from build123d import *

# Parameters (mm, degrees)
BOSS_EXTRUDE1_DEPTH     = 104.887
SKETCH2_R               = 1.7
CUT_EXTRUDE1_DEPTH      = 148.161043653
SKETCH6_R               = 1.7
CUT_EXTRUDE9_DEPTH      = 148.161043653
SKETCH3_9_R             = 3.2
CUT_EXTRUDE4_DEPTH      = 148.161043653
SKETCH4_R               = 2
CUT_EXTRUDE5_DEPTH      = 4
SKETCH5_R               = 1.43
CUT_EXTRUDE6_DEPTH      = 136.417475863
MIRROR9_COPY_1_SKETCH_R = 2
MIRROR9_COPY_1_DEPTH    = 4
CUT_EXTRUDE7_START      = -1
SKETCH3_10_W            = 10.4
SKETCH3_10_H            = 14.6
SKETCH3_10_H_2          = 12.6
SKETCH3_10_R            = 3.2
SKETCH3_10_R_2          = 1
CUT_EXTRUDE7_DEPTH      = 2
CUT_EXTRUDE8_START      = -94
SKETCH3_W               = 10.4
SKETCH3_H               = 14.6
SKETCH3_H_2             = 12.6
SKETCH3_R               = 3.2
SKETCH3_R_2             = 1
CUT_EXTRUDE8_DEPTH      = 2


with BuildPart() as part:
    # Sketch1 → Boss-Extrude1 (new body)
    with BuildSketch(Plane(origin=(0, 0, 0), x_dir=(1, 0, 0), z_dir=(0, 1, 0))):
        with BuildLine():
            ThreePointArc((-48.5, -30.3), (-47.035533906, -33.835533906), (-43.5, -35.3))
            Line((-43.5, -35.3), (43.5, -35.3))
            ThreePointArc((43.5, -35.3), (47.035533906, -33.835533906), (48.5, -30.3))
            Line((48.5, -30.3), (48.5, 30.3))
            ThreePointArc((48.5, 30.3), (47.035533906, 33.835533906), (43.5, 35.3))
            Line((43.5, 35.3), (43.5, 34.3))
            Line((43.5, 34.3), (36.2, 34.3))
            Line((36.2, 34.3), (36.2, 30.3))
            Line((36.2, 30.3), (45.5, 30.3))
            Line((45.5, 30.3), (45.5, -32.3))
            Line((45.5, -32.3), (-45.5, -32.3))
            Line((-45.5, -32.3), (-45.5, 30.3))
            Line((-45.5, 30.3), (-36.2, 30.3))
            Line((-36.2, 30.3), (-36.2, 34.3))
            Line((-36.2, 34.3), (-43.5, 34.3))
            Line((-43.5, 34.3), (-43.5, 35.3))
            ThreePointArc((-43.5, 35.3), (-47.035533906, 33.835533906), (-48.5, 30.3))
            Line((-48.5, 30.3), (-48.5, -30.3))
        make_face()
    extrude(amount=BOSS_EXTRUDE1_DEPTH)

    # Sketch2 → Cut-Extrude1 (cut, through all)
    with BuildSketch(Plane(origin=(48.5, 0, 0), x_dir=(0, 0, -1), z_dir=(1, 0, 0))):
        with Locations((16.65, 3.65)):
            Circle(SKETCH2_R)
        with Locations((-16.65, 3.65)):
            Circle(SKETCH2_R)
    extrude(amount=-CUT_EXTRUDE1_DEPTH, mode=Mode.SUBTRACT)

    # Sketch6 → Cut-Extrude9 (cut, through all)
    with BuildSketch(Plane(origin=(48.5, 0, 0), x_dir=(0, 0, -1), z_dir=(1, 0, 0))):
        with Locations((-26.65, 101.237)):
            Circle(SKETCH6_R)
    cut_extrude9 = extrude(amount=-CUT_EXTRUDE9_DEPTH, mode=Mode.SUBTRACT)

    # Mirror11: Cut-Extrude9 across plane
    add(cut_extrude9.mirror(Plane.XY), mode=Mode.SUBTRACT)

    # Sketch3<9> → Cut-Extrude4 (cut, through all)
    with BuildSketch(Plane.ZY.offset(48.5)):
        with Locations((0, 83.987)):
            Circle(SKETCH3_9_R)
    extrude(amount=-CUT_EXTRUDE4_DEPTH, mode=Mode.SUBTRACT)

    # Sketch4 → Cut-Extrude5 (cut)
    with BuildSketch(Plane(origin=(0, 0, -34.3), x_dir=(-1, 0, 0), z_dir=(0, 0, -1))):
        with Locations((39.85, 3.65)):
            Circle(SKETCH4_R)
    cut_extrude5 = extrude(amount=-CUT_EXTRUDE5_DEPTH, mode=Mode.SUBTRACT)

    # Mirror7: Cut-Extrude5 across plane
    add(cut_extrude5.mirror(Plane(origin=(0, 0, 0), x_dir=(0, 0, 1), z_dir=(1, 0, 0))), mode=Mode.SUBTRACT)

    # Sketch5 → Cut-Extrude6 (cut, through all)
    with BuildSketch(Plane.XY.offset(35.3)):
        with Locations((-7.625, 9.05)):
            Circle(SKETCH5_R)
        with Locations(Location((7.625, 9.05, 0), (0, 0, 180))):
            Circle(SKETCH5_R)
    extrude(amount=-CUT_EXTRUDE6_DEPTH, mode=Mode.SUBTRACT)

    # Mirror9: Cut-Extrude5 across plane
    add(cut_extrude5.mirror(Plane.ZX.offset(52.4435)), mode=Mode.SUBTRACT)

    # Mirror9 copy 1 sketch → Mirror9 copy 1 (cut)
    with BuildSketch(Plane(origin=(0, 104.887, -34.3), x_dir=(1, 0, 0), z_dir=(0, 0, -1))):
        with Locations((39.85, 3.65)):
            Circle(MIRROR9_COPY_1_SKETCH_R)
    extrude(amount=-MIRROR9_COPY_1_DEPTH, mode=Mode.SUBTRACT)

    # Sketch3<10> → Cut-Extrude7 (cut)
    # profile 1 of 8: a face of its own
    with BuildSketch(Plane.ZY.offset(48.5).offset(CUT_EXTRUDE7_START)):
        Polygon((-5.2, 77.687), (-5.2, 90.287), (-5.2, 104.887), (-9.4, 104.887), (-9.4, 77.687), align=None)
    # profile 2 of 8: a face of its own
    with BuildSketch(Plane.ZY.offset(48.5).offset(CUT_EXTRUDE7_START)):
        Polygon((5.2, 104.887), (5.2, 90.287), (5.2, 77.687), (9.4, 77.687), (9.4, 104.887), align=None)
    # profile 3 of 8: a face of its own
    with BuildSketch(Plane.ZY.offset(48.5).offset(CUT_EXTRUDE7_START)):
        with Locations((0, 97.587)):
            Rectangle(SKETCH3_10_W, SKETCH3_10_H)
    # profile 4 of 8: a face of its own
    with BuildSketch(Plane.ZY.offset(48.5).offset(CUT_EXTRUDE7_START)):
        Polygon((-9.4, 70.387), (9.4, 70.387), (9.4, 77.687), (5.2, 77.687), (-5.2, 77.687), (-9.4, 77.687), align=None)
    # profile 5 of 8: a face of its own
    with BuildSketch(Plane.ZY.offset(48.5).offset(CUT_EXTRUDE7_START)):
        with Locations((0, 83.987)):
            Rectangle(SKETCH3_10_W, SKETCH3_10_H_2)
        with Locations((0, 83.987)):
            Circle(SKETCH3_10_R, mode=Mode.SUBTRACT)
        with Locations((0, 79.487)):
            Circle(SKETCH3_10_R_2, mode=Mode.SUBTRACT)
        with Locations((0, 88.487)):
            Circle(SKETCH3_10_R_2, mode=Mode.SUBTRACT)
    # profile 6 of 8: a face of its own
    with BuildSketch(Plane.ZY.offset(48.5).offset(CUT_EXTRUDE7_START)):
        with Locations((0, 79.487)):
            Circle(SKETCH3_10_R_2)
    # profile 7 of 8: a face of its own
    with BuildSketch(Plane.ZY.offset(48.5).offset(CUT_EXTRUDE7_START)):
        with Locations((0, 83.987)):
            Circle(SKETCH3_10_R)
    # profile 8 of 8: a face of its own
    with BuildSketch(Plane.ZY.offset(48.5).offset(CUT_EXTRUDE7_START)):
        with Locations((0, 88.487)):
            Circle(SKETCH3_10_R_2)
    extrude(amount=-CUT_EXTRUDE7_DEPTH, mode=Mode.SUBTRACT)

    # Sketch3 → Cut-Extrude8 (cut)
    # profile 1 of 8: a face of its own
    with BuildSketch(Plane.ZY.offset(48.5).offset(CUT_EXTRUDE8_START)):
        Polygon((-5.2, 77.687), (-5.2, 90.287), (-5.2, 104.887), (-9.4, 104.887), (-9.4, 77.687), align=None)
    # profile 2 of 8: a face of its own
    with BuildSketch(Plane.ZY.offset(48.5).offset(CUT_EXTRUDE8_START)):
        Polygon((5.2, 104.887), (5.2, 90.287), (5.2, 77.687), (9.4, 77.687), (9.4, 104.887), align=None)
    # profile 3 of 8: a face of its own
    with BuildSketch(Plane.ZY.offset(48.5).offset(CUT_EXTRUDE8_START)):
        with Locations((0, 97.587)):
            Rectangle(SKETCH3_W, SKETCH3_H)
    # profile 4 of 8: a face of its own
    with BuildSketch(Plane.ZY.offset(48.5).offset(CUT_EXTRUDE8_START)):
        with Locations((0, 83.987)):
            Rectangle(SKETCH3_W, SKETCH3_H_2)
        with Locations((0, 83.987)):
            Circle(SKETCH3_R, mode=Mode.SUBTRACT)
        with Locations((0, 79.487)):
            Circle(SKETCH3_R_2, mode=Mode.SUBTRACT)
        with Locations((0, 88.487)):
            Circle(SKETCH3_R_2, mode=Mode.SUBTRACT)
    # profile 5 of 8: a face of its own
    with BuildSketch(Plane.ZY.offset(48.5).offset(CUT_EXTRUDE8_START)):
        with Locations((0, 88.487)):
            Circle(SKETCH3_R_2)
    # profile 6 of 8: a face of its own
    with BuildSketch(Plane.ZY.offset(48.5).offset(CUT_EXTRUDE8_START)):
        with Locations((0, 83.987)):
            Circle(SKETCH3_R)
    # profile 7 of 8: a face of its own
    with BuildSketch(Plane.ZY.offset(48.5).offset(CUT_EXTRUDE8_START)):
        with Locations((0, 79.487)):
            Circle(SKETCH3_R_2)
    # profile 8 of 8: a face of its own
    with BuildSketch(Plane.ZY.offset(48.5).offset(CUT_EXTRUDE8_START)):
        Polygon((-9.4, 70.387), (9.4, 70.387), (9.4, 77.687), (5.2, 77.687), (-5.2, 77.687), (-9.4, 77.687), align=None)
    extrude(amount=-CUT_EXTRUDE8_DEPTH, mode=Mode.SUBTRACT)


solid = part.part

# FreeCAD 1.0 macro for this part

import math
import FreeCAD as App
import Part
import Sketcher
from FreeCAD import Vector
Q = App.Units.Quantity

doc = App.newDocument("Part")
body = doc.addObject("PartDesign::Body", "Body")

# Sketch on XZ plane
sketch1 = doc.addObject("Sketcher::SketchObject", "Sketch")
body.addObject(sketch1)
sketch1.AttachmentSupport = (doc.XZ_Plane, [""])
sketch1.MapMode = "FlatFace"
sketch1.addGeometry(Part.ArcOfCircle(Part.Circle(Vector(-43.5, 30.3, 0), Vector(0, 0, 1), 5), math.radians(90), math.radians(180)), False)
sketch1.addGeometry(Part.LineSegment(Vector(-43.5, 35.3, 0), Vector(43.5, 35.3, 0)), False)
sketch1.addGeometry(Part.ArcOfCircle(Part.Circle(Vector(43.5, 30.3, 0), Vector(0, 0, 1), 5), math.radians(0), math.radians(90)), False)
sketch1.addGeometry(Part.LineSegment(Vector(48.5, 30.3, 0), Vector(48.5, -30.3, 0)), False)
sketch1.addGeometry(Part.ArcOfCircle(Part.Circle(Vector(43.5, -30.3, 0), Vector(0, 0, 1), 5), math.radians(-90), math.radians(0)), False)
sketch1.addGeometry(Part.LineSegment(Vector(43.5, -35.3, 0), Vector(43.5, -34.3, 0)), False)
sketch1.addGeometry(Part.LineSegment(Vector(43.5, -34.3, 0), Vector(36.2, -34.3, 0)), False)
sketch1.addGeometry(Part.LineSegment(Vector(36.2, -34.3, 0), Vector(36.2, -30.3, 0)), False)
sketch1.addGeometry(Part.LineSegment(Vector(36.2, -30.3, 0), Vector(45.5, -30.3, 0)), False)
sketch1.addGeometry(Part.LineSegment(Vector(45.5, -30.3, 0), Vector(45.5, 32.3, 0)), False)
sketch1.addGeometry(Part.LineSegment(Vector(45.5, 32.3, 0), Vector(-45.5, 32.3, 0)), False)
sketch1.addGeometry(Part.LineSegment(Vector(-45.5, 32.3, 0), Vector(-45.5, -30.3, 0)), False)
sketch1.addGeometry(Part.LineSegment(Vector(-45.5, -30.3, 0), Vector(-36.2, -30.3, 0)), False)
sketch1.addGeometry(Part.LineSegment(Vector(-36.2, -30.3, 0), Vector(-36.2, -34.3, 0)), False)
sketch1.addGeometry(Part.LineSegment(Vector(-36.2, -34.3, 0), Vector(-43.5, -34.3, 0)), False)
sketch1.addGeometry(Part.LineSegment(Vector(-43.5, -34.3, 0), Vector(-43.5, -35.3, 0)), False)
sketch1.addGeometry(Part.ArcOfCircle(Part.Circle(Vector(-43.5, -30.3, 0), Vector(0, 0, 1), 5), math.radians(180), math.radians(270)), False)
sketch1.addGeometry(Part.LineSegment(Vector(-48.5, -30.3, 0), Vector(-48.5, 30.3, 0)), False)
sketch1.addConstraint(Sketcher.Constraint("Tangent", 0, 1, 1, 1))
sketch1.addConstraint(Sketcher.Constraint("Tangent", 1, 2, 2, 2))
sketch1.addConstraint(Sketcher.Constraint("Tangent", 2, 1, 3, 1))
sketch1.addConstraint(Sketcher.Constraint("Tangent", 3, 2, 4, 2))
sketch1.addConstraint(Sketcher.Constraint("Coincident", 4, 1, 5, 1))
sketch1.addConstraint(Sketcher.Constraint("Coincident", 5, 2, 6, 1))
sketch1.addConstraint(Sketcher.Constraint("Coincident", 6, 2, 7, 1))
sketch1.addConstraint(Sketcher.Constraint("Coincident", 7, 2, 8, 1))
sketch1.addConstraint(Sketcher.Constraint("Coincident", 8, 2, 9, 1))
sketch1.addConstraint(Sketcher.Constraint("Coincident", 9, 2, 10, 1))
sketch1.addConstraint(Sketcher.Constraint("Coincident", 10, 2, 11, 1))
sketch1.addConstraint(Sketcher.Constraint("Coincident", 11, 2, 12, 1))
sketch1.addConstraint(Sketcher.Constraint("Coincident", 12, 2, 13, 1))
sketch1.addConstraint(Sketcher.Constraint("Coincident", 13, 2, 14, 1))
sketch1.addConstraint(Sketcher.Constraint("Coincident", 14, 2, 15, 1))
sketch1.addConstraint(Sketcher.Constraint("Coincident", 15, 2, 16, 2))
sketch1.addConstraint(Sketcher.Constraint("Tangent", 16, 1, 17, 1))
sketch1.addConstraint(Sketcher.Constraint("Tangent", 17, 2, 0, 2))
sketch1.addConstraint(Sketcher.Constraint("Horizontal", 1))
sketch1.addConstraint(Sketcher.Constraint("Vertical", 3))
sketch1.addConstraint(Sketcher.Constraint("Vertical", 5))
sketch1.addConstraint(Sketcher.Constraint("Horizontal", 6))
sketch1.addConstraint(Sketcher.Constraint("Vertical", 7))
sketch1.addConstraint(Sketcher.Constraint("Horizontal", 8))
sketch1.addConstraint(Sketcher.Constraint("Vertical", 9))
sketch1.addConstraint(Sketcher.Constraint("Horizontal", 10))
sketch1.addConstraint(Sketcher.Constraint("Vertical", 11))
sketch1.addConstraint(Sketcher.Constraint("Horizontal", 12))
sketch1.addConstraint(Sketcher.Constraint("Vertical", 13))
sketch1.addConstraint(Sketcher.Constraint("Horizontal", 14))
sketch1.addConstraint(Sketcher.Constraint("Vertical", 15))
sketch1.addConstraint(Sketcher.Constraint("Vertical", 17))
sketch1.addConstraint(Sketcher.Constraint("Equal", 0, 2))
sketch1.addConstraint(Sketcher.Constraint("Equal", 2, 4))
sketch1.addConstraint(Sketcher.Constraint("Equal", 4, 16))
sketch1.addConstraint(Sketcher.Constraint("Symmetric", 0, 3, 4, 3, -1, 1))
sketch1.addConstraint(Sketcher.Constraint("Symmetric", 1, 2, 15, 2, -1, 1))
sketch1.addConstraint(Sketcher.Constraint("Symmetric", 8, 2, 11, 2, -2))
sketch1.addConstraint(Sketcher.Constraint("Symmetric", 6, 2, 13, 2, -2))
sketch1.addConstraint(Sketcher.Constraint("Horizontal", 3, 2, 7, 2))
sketch1.addConstraint(Sketcher.Constraint("Vertical", 1, 2, 4, 1))
sketch1.addConstraint(Sketcher.Constraint("Radius", 0, Q("5 mm")))
sketch1.addConstraint(Sketcher.Constraint("DistanceX", 1, 1, 1, 2, Q("87 mm")))
sketch1.addConstraint(Sketcher.Constraint("DistanceX", 10, 2, 10, 1, Q("91 mm")))
sketch1.addConstraint(Sketcher.Constraint("DistanceY", 5, 1, 5, 2, Q("1 mm")))
sketch1.addConstraint(Sketcher.Constraint("DistanceX", 6, 2, 6, 1, Q("7.3 mm")))
sketch1.addConstraint(Sketcher.Constraint("DistanceY", 3, 2, 3, 1, Q("60.6 mm")))
sketch1.addConstraint(Sketcher.Constraint("DistanceY", 9, 1, 9, 2, Q("62.6 mm")))
pad1 = doc.addObject("PartDesign::Pad", "Pad")
body.addObject(pad1)
pad1.Profile = sketch1
pad1.Length = 104.887
pad1.Reversed = True

# Sketch on YZ plane
sketch2 = doc.addObject("Sketcher::SketchObject", "Sketch001")
body.addObject(sketch2)
sketch2.AttachmentSupport = (doc.YZ_Plane, [""])
sketch2.MapMode = "FlatFace"
sketch2.AttachmentOffset = App.Placement(Vector(0, 0, 48.5), App.Rotation())
sketch2.addGeometry(Part.Circle(Vector(3.6, -16.6, 0), Vector(0, 0, 1), 1.7), False)
sketch2.addGeometry(Part.Circle(Vector(3.6, 16.6, 0), Vector(0, 0, 1), 1.7), False)
sketch2.addConstraint(Sketcher.Constraint("Equal", 0, 1))
sketch2.addConstraint(Sketcher.Constraint("Symmetric", 0, 3, 1, 3, -1))
sketch2.addConstraint(Sketcher.Constraint("Diameter", 0, Q("3.4 mm")))
sketch2.addConstraint(Sketcher.Constraint("DistanceY", 0, 3, 1, 3, Q("33.3 mm")))
sketch2.addConstraint(Sketcher.Constraint("DistanceX", -1, 1, 0, 3, Q("3.65 mm")))
pocket1 = doc.addObject("PartDesign::Pocket", "Pocket")
body.addObject(pocket1)
pocket1.Profile = sketch2
pocket1.Type = "ThroughAll"

# Sketch on YZ plane
sketch3 = doc.addObject("Sketcher::SketchObject", "Sketch002")
body.addObject(sketch3)
sketch3.AttachmentSupport = (doc.YZ_Plane, [""])
sketch3.MapMode = "FlatFace"
sketch3.AttachmentOffset = App.Placement(Vector(0, 0, 48.5), App.Rotation())
sketch3.addGeometry(Part.Circle(Vector(101.2, 26.6, 0), Vector(0, 0, 1), 1.7), False)
sketch3.addConstraint(Sketcher.Constraint("Diameter", 0, Q("3.4 mm")))
sketch3.addConstraint(Sketcher.Constraint("DistanceY", -1, 1, 0, 3, Q("26.65 mm")))
sketch3.addConstraint(Sketcher.Constraint("DistanceX", -1, 1, 0, 3, Q("101.237 mm")))
pocket2 = doc.addObject("PartDesign::Pocket", "Pocket001")
body.addObject(pocket2)
pocket2.Profile = sketch3
pocket2.Type = "ThroughAll"
doc.recompute()

mirrored = doc.addObject("PartDesign::Mirrored", "Mirrored")
body.addObject(mirrored)
mirrored.Originals = [pocket2]
mirrored.MirrorPlane = (doc.XY_Plane, [""])
body.Tip = mirrored

# Sketch on YZ plane
sketch4 = doc.addObject("Sketcher::SketchObject", "Sketch003")
body.addObject(sketch4)
sketch4.AttachmentSupport = (doc.YZ_Plane, [""])
sketch4.MapMode = "FlatFace"
sketch4.AttachmentOffset = App.Placement(Vector(0, 0, -48.5), App.Rotation())
sketch4.addGeometry(Part.Circle(Vector(84, 0, 0), Vector(0, 0, 1), 3.2), False)
sketch4.addConstraint(Sketcher.Constraint("PointOnObject", 0, 3, -1))
sketch4.addConstraint(Sketcher.Constraint("Diameter", 0, Q("6.4 mm")))
sketch4.addConstraint(Sketcher.Constraint("DistanceX", -1, 1, 0, 3, Q("83.987 mm")))
pocket3 = doc.addObject("PartDesign::Pocket", "Pocket002")
body.addObject(pocket3)
pocket3.Profile = sketch4
pocket3.Type = "ThroughAll"
pocket3.Reversed = True

# Sketch on XY plane
sketch5 = doc.addObject("Sketcher::SketchObject", "Sketch004")
body.addObject(sketch5)
sketch5.AttachmentSupport = (doc.XY_Plane, [""])
sketch5.MapMode = "FlatFace"
sketch5.AttachmentOffset = App.Placement(Vector(0, 0, -34.3), App.Rotation())
sketch5.addGeometry(Part.Circle(Vector(-39.9, 3.6, 0), Vector(0, 0, 1), 2), False)
sketch5.addConstraint(Sketcher.Constraint("Diameter", 0, Q("4 mm")))
sketch5.addConstraint(Sketcher.Constraint("DistanceX", 0, 3, -1, 1, Q("39.85 mm")))
sketch5.addConstraint(Sketcher.Constraint("DistanceY", -1, 1, 0, 3, Q("3.65 mm")))
pocket4 = doc.addObject("PartDesign::Pocket", "Pocket003")
body.addObject(pocket4)
pocket4.Profile = sketch5
pocket4.Length = 4
pocket4.Reversed = True
doc.recompute()

mirrored2 = doc.addObject("PartDesign::Mirrored", "Mirrored001")
body.addObject(mirrored2)
mirrored2.Originals = [pocket4]
mirrored2.MirrorPlane = (doc.YZ_Plane, [""])
body.Tip = mirrored2

# Sketch on XY plane
sketch6 = doc.addObject("Sketcher::SketchObject", "Sketch005")
body.addObject(sketch6)
sketch6.AttachmentSupport = (doc.XY_Plane, [""])
sketch6.MapMode = "FlatFace"
sketch6.AttachmentOffset = App.Placement(Vector(0, 0, 35.3), App.Rotation())
sketch6.addGeometry(Part.Circle(Vector(-7.6, 9.1, 0), Vector(0, 0, 1), 1.4), False)
sketch6.addGeometry(Part.Circle(Vector(7.6, 9.1, 0), Vector(0, 0, 1), 1.4), False)
sketch6.addConstraint(Sketcher.Constraint("Equal", 0, 1))
sketch6.addConstraint(Sketcher.Constraint("Symmetric", 0, 3, 1, 3, -2))
sketch6.addConstraint(Sketcher.Constraint("Diameter", 0, Q("2.86 mm")))
sketch6.addConstraint(Sketcher.Constraint("DistanceY", -1, 1, 0, 3, Q("9.05 mm")))
sketch6.addConstraint(Sketcher.Constraint("DistanceX", 0, 3, 1, 3, Q("15.25 mm")))
pocket5 = doc.addObject("PartDesign::Pocket", "Pocket004")
body.addObject(pocket5)
pocket5.Profile = sketch6
pocket5.Type = "ThroughAll"
doc.recompute()

datumplane = doc.addObject("PartDesign::Plane", "DatumPlane")
body.addObject(datumplane)
datumplane.AttachmentSupport = (doc.XZ_Plane, [""])
datumplane.MapMode = "FlatFace"
datumplane.AttachmentOffset = App.Placement(Vector(0, 0, -52.4435), App.Rotation())
mirrored3 = doc.addObject("PartDesign::Mirrored", "Mirrored002")
body.addObject(mirrored3)
mirrored3.Originals = [pocket4]
mirrored3.MirrorPlane = (datumplane, [""])
body.Tip = mirrored3

# Sketch on XY plane
sketch7 = doc.addObject("Sketcher::SketchObject", "Sketch006")
body.addObject(sketch7)
sketch7.AttachmentSupport = (doc.XY_Plane, [""])
sketch7.MapMode = "FlatFace"
sketch7.AttachmentOffset = App.Placement(Vector(0, 0, -34.3), App.Rotation())
sketch7.addGeometry(Part.Circle(Vector(39.9, 101.2, 0), Vector(0, 0, 1), 2), False)
sketch7.addConstraint(Sketcher.Constraint("Diameter", 0, Q("4 mm")))
sketch7.addConstraint(Sketcher.Constraint("DistanceX", -1, 1, 0, 3, Q("39.85 mm")))
sketch7.addConstraint(Sketcher.Constraint("DistanceY", -1, 1, 0, 3, Q("101.237 mm")))
pocket6 = doc.addObject("PartDesign::Pocket", "Pocket005")
body.addObject(pocket6)
pocket6.Profile = sketch7
pocket6.Length = 4
pocket6.Reversed = True

# Sketch on YZ plane
sketch8 = doc.addObject("Sketcher::SketchObject", "Sketch007")
body.addObject(sketch8)
sketch8.AttachmentSupport = (doc.YZ_Plane, [""])
sketch8.MapMode = "FlatFace"
sketch8.AttachmentOffset = App.Placement(Vector(0, 0, -47.5), App.Rotation())
sketch8.addGeometry(Part.LineSegment(Vector(105, -9, 0), Vector(70, -9, 0)), False)
sketch8.addGeometry(Part.LineSegment(Vector(70, -9, 0), Vector(70, 9, 0)), False)
sketch8.addGeometry(Part.LineSegment(Vector(70, 9, 0), Vector(105, 9, 0)), False)
sketch8.addGeometry(Part.LineSegment(Vector(105, 9, 0), Vector(105, -9, 0)), False)
sketch8.addConstraint(Sketcher.Constraint("Coincident", 0, 2, 1, 1))
sketch8.addConstraint(Sketcher.Constraint("Coincident", 1, 2, 2, 1))
sketch8.addConstraint(Sketcher.Constraint("Coincident", 2, 2, 3, 1))
sketch8.addConstraint(Sketcher.Constraint("Coincident", 3, 2, 0, 1))
sketch8.addConstraint(Sketcher.Constraint("Horizontal", 0))
sketch8.addConstraint(Sketcher.Constraint("Vertical", 1))
sketch8.addConstraint(Sketcher.Constraint("Horizontal", 2))
sketch8.addConstraint(Sketcher.Constraint("Vertical", 3))
sketch8.addConstraint(Sketcher.Constraint("DistanceX", 0, 2, 0, 1, Q("34.5 mm")))
sketch8.addConstraint(Sketcher.Constraint("DistanceY", 1, 1, 1, 2, Q("18.8 mm")))
sketch8.addConstraint(Sketcher.Constraint("DistanceY", 0, 2, -1, 1, Q("9.4 mm")))
sketch8.addConstraint(Sketcher.Constraint("DistanceX", -1, 1, 0, 2, Q("70.387 mm")))
pocket7 = doc.addObject("PartDesign::Pocket", "Pocket006")
body.addObject(pocket7)
pocket7.Profile = sketch8
pocket7.Length = 2
pocket7.Reversed = True

# Sketch on YZ plane
sketch9 = doc.addObject("Sketcher::SketchObject", "Sketch008")
body.addObject(sketch9)
sketch9.AttachmentSupport = (doc.YZ_Plane, [""])
sketch9.MapMode = "FlatFace"
sketch9.AttachmentOffset = App.Placement(Vector(0, 0, 45.5), App.Rotation())
sketch9.addGeometry(Part.LineSegment(Vector(105, -9, 0), Vector(70, -9, 0)), False)
sketch9.addGeometry(Part.LineSegment(Vector(70, -9, 0), Vector(70, 9, 0)), False)
sketch9.addGeometry(Part.LineSegment(Vector(70, 9, 0), Vector(105, 9, 0)), False)
sketch9.addGeometry(Part.LineSegment(Vector(105, 9, 0), Vector(105, -9, 0)), False)
sketch9.addConstraint(Sketcher.Constraint("Coincident", 0, 2, 1, 1))
sketch9.addConstraint(Sketcher.Constraint("Coincident", 1, 2, 2, 1))
sketch9.addConstraint(Sketcher.Constraint("Coincident", 2, 2, 3, 1))
sketch9.addConstraint(Sketcher.Constraint("Coincident", 3, 2, 0, 1))
sketch9.addConstraint(Sketcher.Constraint("Horizontal", 0))
sketch9.addConstraint(Sketcher.Constraint("Vertical", 1))
sketch9.addConstraint(Sketcher.Constraint("Horizontal", 2))
sketch9.addConstraint(Sketcher.Constraint("Vertical", 3))
sketch9.addConstraint(Sketcher.Constraint("DistanceX", 0, 2, 0, 1, Q("34.5 mm")))
sketch9.addConstraint(Sketcher.Constraint("DistanceY", 1, 1, 1, 2, Q("18.8 mm")))
sketch9.addConstraint(Sketcher.Constraint("DistanceY", 0, 2, -1, 1, Q("9.4 mm")))
sketch9.addConstraint(Sketcher.Constraint("DistanceX", -1, 1, 0, 2, Q("70.387 mm")))
pocket8 = doc.addObject("PartDesign::Pocket", "Pocket007")
body.addObject(pocket8)
pocket8.Profile = sketch9
pocket8.Length = 2
pocket8.Reversed = True

doc.recompute()
